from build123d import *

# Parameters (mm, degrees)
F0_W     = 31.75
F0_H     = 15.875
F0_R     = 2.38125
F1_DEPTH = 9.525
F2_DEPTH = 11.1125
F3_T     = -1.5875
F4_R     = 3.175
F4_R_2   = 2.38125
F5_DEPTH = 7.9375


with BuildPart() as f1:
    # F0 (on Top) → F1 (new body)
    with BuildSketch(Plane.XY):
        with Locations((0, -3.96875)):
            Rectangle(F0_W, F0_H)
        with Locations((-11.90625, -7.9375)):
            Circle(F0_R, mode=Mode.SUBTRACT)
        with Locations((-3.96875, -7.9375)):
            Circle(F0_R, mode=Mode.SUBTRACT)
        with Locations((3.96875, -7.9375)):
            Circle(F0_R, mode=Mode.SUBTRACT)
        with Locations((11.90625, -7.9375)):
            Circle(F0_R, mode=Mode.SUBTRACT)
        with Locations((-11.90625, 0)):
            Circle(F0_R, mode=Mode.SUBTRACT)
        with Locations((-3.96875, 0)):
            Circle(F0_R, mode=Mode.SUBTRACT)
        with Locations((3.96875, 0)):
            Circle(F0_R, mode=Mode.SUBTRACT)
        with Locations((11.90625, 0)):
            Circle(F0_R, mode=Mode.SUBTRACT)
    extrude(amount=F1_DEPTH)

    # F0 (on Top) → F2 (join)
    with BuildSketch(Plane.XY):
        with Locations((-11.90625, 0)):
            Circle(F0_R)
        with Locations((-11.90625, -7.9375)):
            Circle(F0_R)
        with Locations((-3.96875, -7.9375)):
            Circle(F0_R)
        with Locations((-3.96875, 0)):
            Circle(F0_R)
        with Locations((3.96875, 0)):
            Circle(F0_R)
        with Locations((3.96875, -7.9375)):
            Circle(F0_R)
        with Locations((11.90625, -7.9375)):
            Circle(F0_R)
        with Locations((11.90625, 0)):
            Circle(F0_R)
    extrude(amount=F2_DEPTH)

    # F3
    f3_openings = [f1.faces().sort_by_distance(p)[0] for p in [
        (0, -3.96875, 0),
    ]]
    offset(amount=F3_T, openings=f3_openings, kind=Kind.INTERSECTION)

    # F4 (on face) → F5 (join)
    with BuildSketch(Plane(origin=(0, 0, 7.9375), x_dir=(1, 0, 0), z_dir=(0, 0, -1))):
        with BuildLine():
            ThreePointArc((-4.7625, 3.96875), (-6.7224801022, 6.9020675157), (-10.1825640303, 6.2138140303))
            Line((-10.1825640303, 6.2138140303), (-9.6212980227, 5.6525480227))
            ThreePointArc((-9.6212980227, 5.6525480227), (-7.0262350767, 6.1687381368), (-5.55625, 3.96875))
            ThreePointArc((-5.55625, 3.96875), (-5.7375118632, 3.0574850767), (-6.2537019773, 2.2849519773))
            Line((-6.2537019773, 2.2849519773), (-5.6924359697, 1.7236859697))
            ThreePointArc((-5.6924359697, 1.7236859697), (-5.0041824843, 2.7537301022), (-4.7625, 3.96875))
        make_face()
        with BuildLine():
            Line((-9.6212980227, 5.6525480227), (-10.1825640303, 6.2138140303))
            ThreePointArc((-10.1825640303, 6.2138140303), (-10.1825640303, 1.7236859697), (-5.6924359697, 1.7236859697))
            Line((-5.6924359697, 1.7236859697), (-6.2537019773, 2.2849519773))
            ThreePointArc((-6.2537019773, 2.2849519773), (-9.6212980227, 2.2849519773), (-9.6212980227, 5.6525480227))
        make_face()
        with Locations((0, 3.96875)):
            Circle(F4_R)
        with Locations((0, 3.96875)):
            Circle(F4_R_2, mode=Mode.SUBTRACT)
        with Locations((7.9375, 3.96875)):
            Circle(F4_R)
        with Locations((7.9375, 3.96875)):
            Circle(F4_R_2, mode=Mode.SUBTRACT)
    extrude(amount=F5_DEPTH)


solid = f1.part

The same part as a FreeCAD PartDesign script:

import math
import FreeCAD as App
import Part
import Sketcher

V = App.Vector
Q = App.Units.Quantity


def faces_at(feature, points):
    """Names of the faces that lie closest to the given points."""
    faces = feature.Shape.Faces
    near = lambda p: min(range(len(faces)), key=lambda i: faces[i].distToShape(Part.Vertex(*p))[0])
    return sorted({f"Face{near(p) + 1}" for p in points})


def add_polygon(sketch, points):
    """Adds a closed chain of lines whose ends are joined by coincident constraints."""
    first, n = sketch.GeometryCount, len(points)
    for a, b in zip(points, points[1:] + points[:1]):
        sketch.addGeometry(Part.LineSegment(App.Vector(*a, 0), App.Vector(*b, 0)), False)
    for i in range(n):
        sketch.addConstraint(Sketcher.Constraint("Coincident", first + i, 2, first + (i + 1) % n, 1))

doc = App.newDocument("Part")
body = doc.addObject("PartDesign::Body", "Body")

sketch1 = body.newObject("Sketcher::SketchObject", "Sketch")
sketch1.AttachmentSupport = (doc.getObject("XY_Plane"), [""])
sketch1.MapMode = "FlatFace"
add_polygon(sketch1, [(-15.9, 4), (-15.9, -11.9), (15.9, -11.9), (15.9, 4)])
sketch1.addGeometry(Part.Circle(V(-11.9, -7.9, 0), V(0, 0, 1), 2.4), False)
sketch1.addGeometry(Part.Circle(V(-4, -7.9, 0), V(0, 0, 1), 2.4), False)
sketch1.addGeometry(Part.Circle(V(4, -7.9, 0), V(0, 0, 1), 2.4), False)
sketch1.addGeometry(Part.Circle(V(11.9, -7.9, 0), V(0, 0, 1), 2.4), False)
sketch1.addGeometry(Part.Circle(V(-11.9, 0, 0), V(0, 0, 1), 2.4), False)
sketch1.addGeometry(Part.Circle(V(-4, 0, 0), V(0, 0, 1), 2.4), False)
sketch1.addGeometry(Part.Circle(V(4, 0, 0), V(0, 0, 1), 2.4), False)
sketch1.addGeometry(Part.Circle(V(11.9, 0, 0), V(0, 0, 1), 2.4), False)
sketch1.addConstraint([
    Sketcher.Constraint("Vertical", 0),
    Sketcher.Constraint("Horizontal", 1),
    Sketcher.Constraint("Vertical", 2),
    Sketcher.Constraint("Horizontal", 3),
    Sketcher.Constraint("Equal", 4, 5),
    Sketcher.Constraint("Equal", 5, 6),
    Sketcher.Constraint("Equal", 6, 7),
    Sketcher.Constraint("Equal", 7, 8),
    Sketcher.Constraint("Equal", 8, 9),
    Sketcher.Constraint("Equal", 9, 10),
    Sketcher.Constraint("Equal", 10, 11),
    Sketcher.Constraint("Symmetric", 9, 3, 10, 3, -1, 1),
    Sketcher.Constraint("Symmetric", 8, 3, 11, 3, -1, 1),
    Sketcher.Constraint("Symmetric", 5, 3, 6, 3, -2),
    Sketcher.Constraint("Symmetric", 4, 3, 7, 3, -2),
    Sketcher.Constraint("PointOnObject", 8, 3, -1),
    Sketcher.Constraint("PointOnObject", 9, 3, -1),
    Sketcher.Constraint("Horizontal", 4, 3, 5, 3),
    Sketcher.Constraint("Vertical", 4, 3, 8, 3),
    Sketcher.Constraint("Vertical", 5, 3, 9, 3),
    Sketcher.Constraint("Diameter", 4, Q("0.1875 in")),
    Sketcher.Constraint("DistanceX", 1, 1, 1, 2, Q("1.25 in")),
    Sketcher.Constraint("DistanceY", 0, 2, 0, 1, Q("0.625 in")),
    Sketcher.Constraint("DistanceX", 4, 3, -1, 1, Q("0.46875 in")),
    Sketcher.Constraint("DistanceY", 4, 3, -1, 1, Q("0.3125 in")),
    Sketcher.Constraint("DistanceX", 5, 3, -1, 1, Q("0.15625 in")),
    Sketcher.Constraint("DistanceX", 0, 2, -1, 1, Q("0.625 in")),
    Sketcher.Constraint("DistanceY", 0, 2, -1, 1, Q("0.46875 in")),
])
pad1 = body.newObject("PartDesign::Pad", "Pad")
pad1.Profile = sketch1
pad1.Length = Q("0.375 in")

sketch2 = body.newObject("Sketcher::SketchObject", "Sketch001")
sketch2.AttachmentSupport = (doc.getObject("XY_Plane"), [""])
sketch2.MapMode = "FlatFace"
sketch2.addGeometry([
    Part.Circle(V(-11.9, 0, 0), V(0, 0, 1), 2.4),
    Part.Circle(V(-11.9, -7.9, 0), V(0, 0, 1), 2.4),
    Part.Circle(V(-4, -7.9, 0), V(0, 0, 1), 2.4),
    Part.Circle(V(-4, 0, 0), V(0, 0, 1), 2.4),
    Part.Circle(V(4, 0, 0), V(0, 0, 1), 2.4),
    Part.Circle(V(4, -7.9, 0), V(0, 0, 1), 2.4),
    Part.Circle(V(11.9, -7.9, 0), V(0, 0, 1), 2.4),
    Part.Circle(V(11.9, 0, 0), V(0, 0, 1), 2.4),
], False)
sketch2.addConstraint([
    Sketcher.Constraint("Equal", 0, 1),
    Sketcher.Constraint("Equal", 1, 2),
    Sketcher.Constraint("Equal", 2, 3),
    Sketcher.Constraint("Equal", 3, 4),
    Sketcher.Constraint("Equal", 4, 5),
    Sketcher.Constraint("Equal", 5, 6),
    Sketcher.Constraint("Equal", 6, 7),
    Sketcher.Constraint("Symmetric", 3, 3, 4, 3, -1, 1),
    Sketcher.Constraint("Symmetric", 0, 3, 7, 3, -1, 1),
    Sketcher.Constraint("Symmetric", 2, 3, 5, 3, -2),
    Sketcher.Constraint("Symmetric", 1, 3, 6, 3, -2),
    Sketcher.Constraint("PointOnObject", 0, 3, -1),
    Sketcher.Constraint("PointOnObject", 3, 3, -1),
    Sketcher.Constraint("Horizontal", 1, 3, 2, 3),
    Sketcher.Constraint("Vertical", 0, 3, 1, 3),
    Sketcher.Constraint("Vertical", 2, 3, 3, 3),
    Sketcher.Constraint("Diameter", 0, Q("0.1875 in")),
    Sketcher.Constraint("DistanceX", 0, 3, -1, 1, Q("0.46875 in")),
    Sketcher.Constraint("DistanceY", 1, 3, -1, 1, Q("0.3125 in")),
    Sketcher.Constraint("DistanceX", 2, 3, -1, 1, Q("0.15625 in")),
])
pad2 = body.newObject("PartDesign::Pad", "Pad001")
pad2.Profile = sketch2
pad2.Length = Q("0.4375 in")
doc.recompute()

thickness = body.newObject("PartDesign::Thickness", "Thickness")
thickness.Base = (pad2, faces_at(pad2, [(0, -3.969, 0)]))
thickness.Value = Q("0.0625 in")
thickness.Reversed = True
thickness.Join = "Intersection"

sketch3 = body.newObject("Sketcher::SketchObject", "Sketch002")
sketch3.AttachmentSupport = (doc.getObject("XY_Plane"), [""])
sketch3.MapMode = "FlatFace"
sketch3.AttachmentOffset = App.Placement(V(0, 0, 0.3125 * 25.4), App.Rotation())
sketch3.addGeometry([
    Part.ArcOfCircle(Part.Circle(V(-7.9, -4, 0), V(0, 0, 1), 3.2), math.radians(-135), math.radians(0)),
    Part.ArcOfCircle(Part.Circle(V(-7.9, -4, 0), V(0, 0, 1), 3.2), math.radians(45), math.radians(225)),
    Part.ArcOfCircle(Part.Circle(V(-7.9, -4, 0), V(0, 0, 1), 3.2), math.radians(0), math.radians(45)),
    Part.Circle(V(-7.9, -4, 0), V(0, 0, 1), 2.4),
    Part.Circle(V(0, -4, 0), V(0, 0, 1), 3.2),
    Part.Circle(V(0, -4, 0), V(0, 0, 1), 2.4),
    Part.Circle(V(7.9, -4, 0), V(0, 0, 1), 3.2),
    Part.Circle(V(7.9, -4, 0), V(0, 0, 1), 2.4),
], False)
sketch3.addConstraint([
    Sketcher.Constraint("Tangent", 0, 1, 1, 2),
    Sketcher.Constraint("Tangent", 1, 1, 2, 2),
    Sketcher.Constraint("Tangent", 2, 1, 0, 2),
    Sketcher.Constraint("Coincident", 3, 3, 0, 3),
    Sketcher.Constraint("Coincident", 5, 3, 4, 3),
    Sketcher.Constraint("Coincident", 7, 3, 6, 3),
    Sketcher.Constraint("Equal", 2, 4),
    Sketcher.Constraint("Equal", 3, 5),
    Sketcher.Constraint("Equal", 4, 6),
    Sketcher.Constraint("Equal", 5, 7),
    Sketcher.Constraint("Symmetric", 0, 3, 6, 3, -2),
    Sketcher.Constraint("PointOnObject", 4, 3, -2),
    Sketcher.Constraint("Horizontal", 3, 3, 4, 3),
    Sketcher.Constraint("Horizontal", 7, 3, 2, 1),
    Sketcher.Constraint("Diameter", 4, Q("0.25 in")),
    Sketcher.Constraint("Diameter", 3, Q("0.1875 in")),
    Sketcher.Constraint("DistanceX", 0, 3, -1, 1, Q("0.3125 in")),
    Sketcher.Constraint("DistanceY", 0, 3, -1, 1, Q("0.15625 in")),
    Sketcher.Constraint("DistanceX", 0, 1, -1, 1, Q("10.182564 mm")),
    Sketcher.Constraint("DistanceX", 1, 1, -1, 1, Q("5.692436 mm")),
])
pad3 = body.newObject("PartDesign::Pad", "Pad002")
pad3.Profile = sketch3
pad3.Length = Q("0.3125 in")
pad3.Reversed = True

doc.recompute()
